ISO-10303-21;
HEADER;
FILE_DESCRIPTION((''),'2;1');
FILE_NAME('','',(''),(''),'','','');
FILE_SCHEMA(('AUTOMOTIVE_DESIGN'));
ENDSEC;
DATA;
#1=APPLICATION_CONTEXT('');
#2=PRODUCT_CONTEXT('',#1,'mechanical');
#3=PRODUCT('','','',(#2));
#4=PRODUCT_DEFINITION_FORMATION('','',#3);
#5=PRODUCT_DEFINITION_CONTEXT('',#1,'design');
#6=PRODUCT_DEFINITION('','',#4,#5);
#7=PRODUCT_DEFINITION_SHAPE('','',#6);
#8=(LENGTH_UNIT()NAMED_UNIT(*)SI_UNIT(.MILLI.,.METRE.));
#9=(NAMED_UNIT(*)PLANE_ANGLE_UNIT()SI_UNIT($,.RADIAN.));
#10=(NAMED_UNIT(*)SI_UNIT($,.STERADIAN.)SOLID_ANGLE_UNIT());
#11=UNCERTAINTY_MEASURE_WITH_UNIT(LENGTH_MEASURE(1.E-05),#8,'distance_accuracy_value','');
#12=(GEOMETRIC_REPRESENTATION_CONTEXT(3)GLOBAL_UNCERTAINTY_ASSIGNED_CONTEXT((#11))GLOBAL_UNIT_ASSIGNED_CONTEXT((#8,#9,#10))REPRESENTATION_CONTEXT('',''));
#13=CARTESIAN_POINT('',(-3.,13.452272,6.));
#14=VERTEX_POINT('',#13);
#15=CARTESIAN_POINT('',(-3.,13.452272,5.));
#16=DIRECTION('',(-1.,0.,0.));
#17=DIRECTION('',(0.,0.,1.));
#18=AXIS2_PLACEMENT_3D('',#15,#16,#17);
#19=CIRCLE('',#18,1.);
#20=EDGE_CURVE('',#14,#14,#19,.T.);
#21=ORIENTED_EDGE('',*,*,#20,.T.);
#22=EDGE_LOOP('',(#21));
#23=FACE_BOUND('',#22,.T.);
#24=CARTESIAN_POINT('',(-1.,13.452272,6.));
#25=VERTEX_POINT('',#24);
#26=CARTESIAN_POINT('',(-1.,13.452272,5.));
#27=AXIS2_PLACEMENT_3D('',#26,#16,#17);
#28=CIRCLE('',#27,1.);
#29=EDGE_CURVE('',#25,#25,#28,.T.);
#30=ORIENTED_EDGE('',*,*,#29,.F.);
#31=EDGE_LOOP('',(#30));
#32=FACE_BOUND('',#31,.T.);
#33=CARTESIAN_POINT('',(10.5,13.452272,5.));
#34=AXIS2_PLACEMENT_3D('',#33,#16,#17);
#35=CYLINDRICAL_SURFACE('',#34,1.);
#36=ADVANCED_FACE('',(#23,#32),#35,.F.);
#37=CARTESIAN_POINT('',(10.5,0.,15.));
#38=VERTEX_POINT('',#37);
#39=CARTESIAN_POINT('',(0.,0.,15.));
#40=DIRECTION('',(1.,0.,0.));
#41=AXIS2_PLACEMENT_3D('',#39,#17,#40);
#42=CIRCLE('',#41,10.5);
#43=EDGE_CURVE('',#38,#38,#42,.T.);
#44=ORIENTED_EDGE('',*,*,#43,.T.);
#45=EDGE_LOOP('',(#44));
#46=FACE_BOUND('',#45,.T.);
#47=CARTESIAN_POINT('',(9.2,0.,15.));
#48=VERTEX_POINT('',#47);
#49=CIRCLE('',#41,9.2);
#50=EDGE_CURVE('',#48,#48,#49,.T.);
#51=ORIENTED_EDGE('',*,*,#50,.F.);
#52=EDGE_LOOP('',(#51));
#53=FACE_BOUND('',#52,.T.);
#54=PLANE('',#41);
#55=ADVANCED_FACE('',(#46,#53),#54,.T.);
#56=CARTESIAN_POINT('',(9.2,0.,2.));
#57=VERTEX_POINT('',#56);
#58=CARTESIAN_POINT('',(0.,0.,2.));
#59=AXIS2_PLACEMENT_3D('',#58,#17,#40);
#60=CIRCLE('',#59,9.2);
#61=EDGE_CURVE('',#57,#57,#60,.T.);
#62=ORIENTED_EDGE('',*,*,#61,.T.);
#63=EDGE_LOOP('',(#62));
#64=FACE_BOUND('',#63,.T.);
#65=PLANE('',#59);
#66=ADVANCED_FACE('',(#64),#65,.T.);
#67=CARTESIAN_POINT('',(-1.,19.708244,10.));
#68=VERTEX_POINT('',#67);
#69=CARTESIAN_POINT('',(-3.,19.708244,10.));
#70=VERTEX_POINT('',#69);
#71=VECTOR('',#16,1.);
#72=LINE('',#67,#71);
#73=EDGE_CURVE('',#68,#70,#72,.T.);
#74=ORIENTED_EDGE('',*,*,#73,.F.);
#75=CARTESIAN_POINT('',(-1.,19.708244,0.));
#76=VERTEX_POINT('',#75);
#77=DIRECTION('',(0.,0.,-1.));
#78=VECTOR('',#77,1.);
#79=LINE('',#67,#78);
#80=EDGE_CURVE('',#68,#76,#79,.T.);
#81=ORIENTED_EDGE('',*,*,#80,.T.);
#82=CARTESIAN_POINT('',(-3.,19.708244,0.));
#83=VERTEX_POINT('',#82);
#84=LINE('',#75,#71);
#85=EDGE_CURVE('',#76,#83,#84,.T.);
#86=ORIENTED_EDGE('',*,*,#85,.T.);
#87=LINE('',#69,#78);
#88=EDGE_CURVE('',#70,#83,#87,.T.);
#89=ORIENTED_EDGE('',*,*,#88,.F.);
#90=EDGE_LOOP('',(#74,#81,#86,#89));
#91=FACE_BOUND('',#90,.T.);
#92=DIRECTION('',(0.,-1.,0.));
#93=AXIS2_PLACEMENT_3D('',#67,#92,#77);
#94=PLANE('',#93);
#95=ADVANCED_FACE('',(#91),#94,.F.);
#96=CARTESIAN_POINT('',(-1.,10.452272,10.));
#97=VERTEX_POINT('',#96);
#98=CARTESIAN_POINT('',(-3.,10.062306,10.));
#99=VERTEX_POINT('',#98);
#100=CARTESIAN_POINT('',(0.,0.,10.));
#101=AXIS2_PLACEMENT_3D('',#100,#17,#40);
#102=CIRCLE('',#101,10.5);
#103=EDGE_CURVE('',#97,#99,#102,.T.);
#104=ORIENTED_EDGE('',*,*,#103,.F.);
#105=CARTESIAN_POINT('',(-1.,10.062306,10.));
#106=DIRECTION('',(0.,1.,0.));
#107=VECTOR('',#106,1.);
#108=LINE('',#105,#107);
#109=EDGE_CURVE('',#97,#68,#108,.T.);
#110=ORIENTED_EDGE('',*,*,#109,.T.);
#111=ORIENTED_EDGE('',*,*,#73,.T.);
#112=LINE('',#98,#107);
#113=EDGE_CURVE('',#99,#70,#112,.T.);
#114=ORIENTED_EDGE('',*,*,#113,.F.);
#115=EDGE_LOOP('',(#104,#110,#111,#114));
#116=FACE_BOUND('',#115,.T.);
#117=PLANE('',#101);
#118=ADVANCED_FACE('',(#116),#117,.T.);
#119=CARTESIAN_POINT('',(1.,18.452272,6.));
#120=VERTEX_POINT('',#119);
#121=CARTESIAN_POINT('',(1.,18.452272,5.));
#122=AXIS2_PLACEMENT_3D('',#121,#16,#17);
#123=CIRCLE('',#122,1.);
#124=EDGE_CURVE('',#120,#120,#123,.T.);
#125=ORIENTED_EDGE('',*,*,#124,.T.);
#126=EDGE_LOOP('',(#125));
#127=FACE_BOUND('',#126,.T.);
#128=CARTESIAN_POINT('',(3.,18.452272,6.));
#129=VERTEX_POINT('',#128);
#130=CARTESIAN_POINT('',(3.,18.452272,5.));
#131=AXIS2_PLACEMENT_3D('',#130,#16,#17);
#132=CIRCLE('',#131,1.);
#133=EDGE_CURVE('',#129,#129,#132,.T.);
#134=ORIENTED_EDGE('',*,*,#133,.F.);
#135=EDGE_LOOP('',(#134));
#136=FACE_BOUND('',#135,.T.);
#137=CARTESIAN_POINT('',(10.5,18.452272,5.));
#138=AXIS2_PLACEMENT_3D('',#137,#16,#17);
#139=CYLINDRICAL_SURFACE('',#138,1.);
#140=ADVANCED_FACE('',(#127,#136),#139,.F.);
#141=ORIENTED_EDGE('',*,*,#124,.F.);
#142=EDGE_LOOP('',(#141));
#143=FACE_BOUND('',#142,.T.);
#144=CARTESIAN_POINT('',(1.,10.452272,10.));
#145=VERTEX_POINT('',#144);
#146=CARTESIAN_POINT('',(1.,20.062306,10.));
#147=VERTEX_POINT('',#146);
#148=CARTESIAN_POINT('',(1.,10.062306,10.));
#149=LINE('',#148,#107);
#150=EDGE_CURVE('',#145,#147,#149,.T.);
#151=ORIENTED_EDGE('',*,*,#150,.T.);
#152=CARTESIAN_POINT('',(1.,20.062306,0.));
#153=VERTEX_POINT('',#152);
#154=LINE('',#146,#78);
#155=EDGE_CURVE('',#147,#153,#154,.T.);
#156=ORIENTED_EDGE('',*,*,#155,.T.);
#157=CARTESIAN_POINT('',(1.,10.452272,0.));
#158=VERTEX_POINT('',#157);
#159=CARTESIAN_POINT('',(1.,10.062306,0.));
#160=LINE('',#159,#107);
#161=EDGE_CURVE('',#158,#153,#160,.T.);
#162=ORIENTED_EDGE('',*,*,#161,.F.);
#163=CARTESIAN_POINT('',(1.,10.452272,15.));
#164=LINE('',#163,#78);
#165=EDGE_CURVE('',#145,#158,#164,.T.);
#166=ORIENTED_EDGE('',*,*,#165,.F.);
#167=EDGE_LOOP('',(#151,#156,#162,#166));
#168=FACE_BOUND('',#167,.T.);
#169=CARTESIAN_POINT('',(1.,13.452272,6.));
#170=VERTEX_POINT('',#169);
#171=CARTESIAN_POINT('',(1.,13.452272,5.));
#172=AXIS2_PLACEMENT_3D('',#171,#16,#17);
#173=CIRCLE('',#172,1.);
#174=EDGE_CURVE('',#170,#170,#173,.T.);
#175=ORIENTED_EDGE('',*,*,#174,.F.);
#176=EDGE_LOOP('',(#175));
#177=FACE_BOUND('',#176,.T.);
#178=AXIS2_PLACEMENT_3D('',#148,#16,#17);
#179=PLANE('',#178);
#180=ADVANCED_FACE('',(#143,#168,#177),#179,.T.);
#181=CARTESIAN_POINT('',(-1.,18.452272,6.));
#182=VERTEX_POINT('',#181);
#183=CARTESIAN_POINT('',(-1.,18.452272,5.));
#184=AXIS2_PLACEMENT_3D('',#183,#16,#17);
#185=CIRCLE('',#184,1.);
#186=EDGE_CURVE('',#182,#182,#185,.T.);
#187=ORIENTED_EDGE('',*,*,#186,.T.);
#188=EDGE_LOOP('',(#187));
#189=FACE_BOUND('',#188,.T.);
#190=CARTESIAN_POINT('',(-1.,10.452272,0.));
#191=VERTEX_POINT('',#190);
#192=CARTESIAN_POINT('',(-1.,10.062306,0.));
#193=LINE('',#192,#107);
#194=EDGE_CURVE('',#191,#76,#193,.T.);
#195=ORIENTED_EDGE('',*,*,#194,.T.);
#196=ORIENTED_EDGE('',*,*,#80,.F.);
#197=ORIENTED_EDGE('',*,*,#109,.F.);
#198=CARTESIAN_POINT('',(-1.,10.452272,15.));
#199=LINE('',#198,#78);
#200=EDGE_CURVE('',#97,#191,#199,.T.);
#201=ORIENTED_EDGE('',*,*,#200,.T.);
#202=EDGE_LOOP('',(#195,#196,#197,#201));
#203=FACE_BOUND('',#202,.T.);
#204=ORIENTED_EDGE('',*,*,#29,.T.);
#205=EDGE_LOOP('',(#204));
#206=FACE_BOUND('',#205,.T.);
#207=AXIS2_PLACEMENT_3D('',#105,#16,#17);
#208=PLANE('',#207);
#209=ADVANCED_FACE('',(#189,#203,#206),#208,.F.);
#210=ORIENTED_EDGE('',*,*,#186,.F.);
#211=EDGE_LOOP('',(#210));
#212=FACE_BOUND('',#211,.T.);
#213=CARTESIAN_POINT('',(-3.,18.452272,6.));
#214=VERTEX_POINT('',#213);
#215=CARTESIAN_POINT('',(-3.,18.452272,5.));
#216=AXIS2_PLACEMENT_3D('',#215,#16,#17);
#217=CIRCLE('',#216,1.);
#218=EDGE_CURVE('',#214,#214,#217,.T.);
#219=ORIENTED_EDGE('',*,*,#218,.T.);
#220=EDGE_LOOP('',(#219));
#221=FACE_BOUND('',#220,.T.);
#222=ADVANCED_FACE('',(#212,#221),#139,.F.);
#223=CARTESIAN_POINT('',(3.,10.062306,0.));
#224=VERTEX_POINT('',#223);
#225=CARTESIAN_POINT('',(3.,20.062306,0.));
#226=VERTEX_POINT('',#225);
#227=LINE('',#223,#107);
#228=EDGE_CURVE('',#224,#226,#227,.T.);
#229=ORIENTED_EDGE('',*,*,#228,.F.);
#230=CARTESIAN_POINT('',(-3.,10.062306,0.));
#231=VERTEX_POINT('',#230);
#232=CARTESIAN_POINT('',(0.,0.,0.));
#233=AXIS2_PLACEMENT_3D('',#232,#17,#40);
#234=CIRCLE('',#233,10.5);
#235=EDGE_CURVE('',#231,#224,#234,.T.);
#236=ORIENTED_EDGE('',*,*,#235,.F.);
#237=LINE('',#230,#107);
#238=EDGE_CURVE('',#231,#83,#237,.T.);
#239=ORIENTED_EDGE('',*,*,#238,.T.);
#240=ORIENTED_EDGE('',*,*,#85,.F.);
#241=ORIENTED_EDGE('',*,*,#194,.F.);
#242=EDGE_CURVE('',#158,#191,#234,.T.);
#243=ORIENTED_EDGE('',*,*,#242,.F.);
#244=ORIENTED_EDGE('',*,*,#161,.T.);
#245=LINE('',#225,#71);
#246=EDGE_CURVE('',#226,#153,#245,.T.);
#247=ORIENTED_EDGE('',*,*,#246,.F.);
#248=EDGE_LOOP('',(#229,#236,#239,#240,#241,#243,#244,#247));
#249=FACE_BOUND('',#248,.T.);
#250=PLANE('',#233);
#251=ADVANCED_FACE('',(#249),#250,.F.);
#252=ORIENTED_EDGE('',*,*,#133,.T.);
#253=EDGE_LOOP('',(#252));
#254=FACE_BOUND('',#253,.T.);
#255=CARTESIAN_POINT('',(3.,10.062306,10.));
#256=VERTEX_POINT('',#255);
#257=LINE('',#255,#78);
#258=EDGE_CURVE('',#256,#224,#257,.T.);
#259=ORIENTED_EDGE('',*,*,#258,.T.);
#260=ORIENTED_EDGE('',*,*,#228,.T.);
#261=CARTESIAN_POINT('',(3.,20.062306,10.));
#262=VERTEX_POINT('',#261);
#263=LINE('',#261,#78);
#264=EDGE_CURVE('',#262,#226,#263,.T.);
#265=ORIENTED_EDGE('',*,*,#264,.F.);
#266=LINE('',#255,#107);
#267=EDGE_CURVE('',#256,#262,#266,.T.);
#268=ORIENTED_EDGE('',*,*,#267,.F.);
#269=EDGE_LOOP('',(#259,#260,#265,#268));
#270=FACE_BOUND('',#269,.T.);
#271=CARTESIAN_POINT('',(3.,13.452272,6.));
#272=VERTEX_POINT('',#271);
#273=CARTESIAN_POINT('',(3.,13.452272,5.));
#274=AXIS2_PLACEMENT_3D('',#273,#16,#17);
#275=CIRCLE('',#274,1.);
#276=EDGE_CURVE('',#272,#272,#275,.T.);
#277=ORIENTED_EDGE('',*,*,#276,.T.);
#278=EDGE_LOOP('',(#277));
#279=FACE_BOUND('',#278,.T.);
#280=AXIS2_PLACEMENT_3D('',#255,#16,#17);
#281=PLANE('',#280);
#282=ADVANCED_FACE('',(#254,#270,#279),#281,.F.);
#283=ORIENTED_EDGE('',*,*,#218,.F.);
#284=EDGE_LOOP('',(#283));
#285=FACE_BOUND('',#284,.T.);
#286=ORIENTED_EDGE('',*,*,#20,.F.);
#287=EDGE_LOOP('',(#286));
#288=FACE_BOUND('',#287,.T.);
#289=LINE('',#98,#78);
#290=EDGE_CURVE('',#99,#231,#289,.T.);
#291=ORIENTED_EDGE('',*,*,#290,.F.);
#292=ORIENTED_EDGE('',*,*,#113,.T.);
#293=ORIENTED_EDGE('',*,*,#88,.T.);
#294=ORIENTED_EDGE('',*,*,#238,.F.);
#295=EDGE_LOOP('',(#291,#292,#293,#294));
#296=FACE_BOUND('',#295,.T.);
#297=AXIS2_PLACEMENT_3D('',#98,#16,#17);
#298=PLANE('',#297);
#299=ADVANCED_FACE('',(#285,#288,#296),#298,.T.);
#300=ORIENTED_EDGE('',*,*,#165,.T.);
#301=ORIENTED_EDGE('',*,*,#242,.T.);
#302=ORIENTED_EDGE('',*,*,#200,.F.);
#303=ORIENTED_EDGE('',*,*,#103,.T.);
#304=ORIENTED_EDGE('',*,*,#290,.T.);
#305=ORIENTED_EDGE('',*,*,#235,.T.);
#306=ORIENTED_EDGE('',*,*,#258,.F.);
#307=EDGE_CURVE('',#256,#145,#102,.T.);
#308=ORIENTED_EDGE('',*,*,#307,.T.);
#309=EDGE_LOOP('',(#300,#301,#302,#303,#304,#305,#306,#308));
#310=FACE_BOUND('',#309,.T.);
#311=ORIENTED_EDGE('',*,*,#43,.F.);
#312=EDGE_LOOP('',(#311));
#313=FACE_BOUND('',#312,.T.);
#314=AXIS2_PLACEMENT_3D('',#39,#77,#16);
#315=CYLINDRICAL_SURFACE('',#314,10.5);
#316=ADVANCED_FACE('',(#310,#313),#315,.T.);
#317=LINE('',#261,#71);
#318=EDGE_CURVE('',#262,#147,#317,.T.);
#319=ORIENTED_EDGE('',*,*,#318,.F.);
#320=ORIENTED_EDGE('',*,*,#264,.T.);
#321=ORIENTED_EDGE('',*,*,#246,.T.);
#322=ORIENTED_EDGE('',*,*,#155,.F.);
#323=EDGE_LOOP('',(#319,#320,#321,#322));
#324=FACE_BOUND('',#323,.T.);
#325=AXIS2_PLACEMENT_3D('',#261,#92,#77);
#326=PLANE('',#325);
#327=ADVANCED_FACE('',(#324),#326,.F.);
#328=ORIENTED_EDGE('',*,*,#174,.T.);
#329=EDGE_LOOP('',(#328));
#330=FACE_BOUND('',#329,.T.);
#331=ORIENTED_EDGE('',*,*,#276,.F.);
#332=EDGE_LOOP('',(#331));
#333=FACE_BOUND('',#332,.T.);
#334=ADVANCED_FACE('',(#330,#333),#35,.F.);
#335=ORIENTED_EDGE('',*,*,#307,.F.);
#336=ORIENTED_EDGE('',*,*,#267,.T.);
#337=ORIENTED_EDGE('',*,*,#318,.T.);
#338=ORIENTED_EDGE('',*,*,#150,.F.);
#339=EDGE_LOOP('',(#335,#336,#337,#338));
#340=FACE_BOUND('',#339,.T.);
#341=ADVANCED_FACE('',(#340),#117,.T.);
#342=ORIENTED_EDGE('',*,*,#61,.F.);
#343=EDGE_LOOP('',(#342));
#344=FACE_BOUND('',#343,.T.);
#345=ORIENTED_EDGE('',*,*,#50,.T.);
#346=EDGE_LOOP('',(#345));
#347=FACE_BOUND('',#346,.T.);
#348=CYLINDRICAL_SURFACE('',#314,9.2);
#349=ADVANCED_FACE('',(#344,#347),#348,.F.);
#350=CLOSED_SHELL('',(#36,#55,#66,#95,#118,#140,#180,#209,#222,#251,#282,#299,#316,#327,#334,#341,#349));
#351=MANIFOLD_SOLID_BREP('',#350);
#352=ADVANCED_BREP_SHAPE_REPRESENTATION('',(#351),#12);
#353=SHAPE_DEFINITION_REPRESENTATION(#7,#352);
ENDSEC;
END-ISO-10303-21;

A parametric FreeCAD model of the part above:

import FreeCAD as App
import Part
import Sketcher
from FreeCAD import Vector

doc = App.newDocument("Part")
body = doc.addObject("PartDesign::Body", "Body")

# Sketch on XY plane
sketch1 = body.newObject("Sketcher::SketchObject", "Sketch")
sketch1.AttachmentSupport = (doc.getObject("XY_Plane"), [""])
sketch1.MapMode = "FlatFace"
sketch1.addGeometry([
    Part.Circle(Vector(0, 0, 0), Vector(0, 0, 1), 10.5),
    Part.Circle(Vector(0, 0, 0), Vector(0, 0, 1), 9.2),
], False)
sketch1.addConstraint([
    Sketcher.Constraint("Coincident", 0, 3, -1, 1),
    Sketcher.Constraint("Coincident", 1, 3, -1, 1),
    Sketcher.Constraint("Diameter", 0, 21.0),
    Sketcher.Constraint("Diameter", 1, 18.4),
])
pad1 = body.newObject("PartDesign::Pad", "Pad")
pad1.Profile = sketch1
pad1.Length = 15

# Sketch on XY plane
sketch2 = body.newObject("Sketcher::SketchObject", "Sketch001")
sketch2.AttachmentSupport = (doc.getObject("XY_Plane"), [""])
sketch2.MapMode = "FlatFace"
sketch2.addGeometry(Part.Circle(Vector(0, 0, 0), Vector(0, 0, 1), 10.5), False)
sketch2.addConstraint([
    Sketcher.Constraint("Coincident", 0, 3, -1, 1),
    Sketcher.Constraint("Diameter", 0, 21.0),
])
pad2 = body.newObject("PartDesign::Pad", "Pad001")
pad2.Profile = sketch2
pad2.Length = 2

# Sketch on XY plane
sketch3 = body.newObject("Sketcher::SketchObject", "Sketch002")
sketch3.AttachmentSupport = (doc.getObject("XY_Plane"), [""])
sketch3.MapMode = "FlatFace"
sketch3.addGeometry([
    Part.LineSegment(Vector(3, 20.062306, 0), Vector(3, 10.062306, 0)),
    Part.LineSegment(Vector(3, 10.062306, 0), Vector(1, 10.062306, 0)),
    Part.LineSegment(Vector(1, 10.062306, 0), Vector(1, 20.062306, 0)),
    Part.LineSegment(Vector(1, 20.062306, 0), Vector(3, 20.062306, 0)),
], False)
sketch3.addConstraint([
    Sketcher.Constraint("Coincident", 0, 2, 1, 1),
    Sketcher.Constraint("Coincident", 1, 2, 2, 1),
    Sketcher.Constraint("Coincident", 2, 2, 3, 1),
    Sketcher.Constraint("Coincident", 3, 2, 0, 1),
    Sketcher.Constraint("Vertical", 0),
    Sketcher.Constraint("Horizontal", 1),
    Sketcher.Constraint("Vertical", 2),
    Sketcher.Constraint("Horizontal", 3),
    Sketcher.Constraint("DistanceX", 1, 2, 1, 1, 2.0),
    Sketcher.Constraint("DistanceY", 0, 2, 0, 1, 10.0),
    Sketcher.Constraint("DistanceX", -1, 1, 0, 2, 3.0),
    Sketcher.Constraint("DistanceY", -1, 1, 0, 2, 10.062306),
])
pad3 = body.newObject("PartDesign::Pad", "Pad002")
pad3.Profile = sketch3
pad3.Length = 10

# Sketch on XY plane
sketch4 = body.newObject("Sketcher::SketchObject", "Sketch003")
sketch4.AttachmentSupport = (doc.getObject("XY_Plane"), [""])
sketch4.MapMode = "FlatFace"
sketch4.addGeometry([
    Part.LineSegment(Vector(-1, 19.708244, 0), Vector(-1, 10.062306, 0)),
    Part.LineSegment(Vector(-1, 10.062306, 0), Vector(-3, 10.062306, 0)),
    Part.LineSegment(Vector(-3, 10.062306, 0), Vector(-3, 19.708244, 0)),
    Part.LineSegment(Vector(-3, 19.708244, 0), Vector(-1, 19.708244, 0)),
], False)
sketch4.addConstraint([
    Sketcher.Constraint("Coincident", 0, 2, 1, 1),
    Sketcher.Constraint("Coincident", 1, 2, 2, 1),
    Sketcher.Constraint("Coincident", 2, 2, 3, 1),
    Sketcher.Constraint("Coincident", 3, 2, 0, 1),
    Sketcher.Constraint("Vertical", 0),
    Sketcher.Constraint("Horizontal", 1),
    Sketcher.Constraint("Vertical", 2),
    Sketcher.Constraint("Horizontal", 3),
    Sketcher.Constraint("DistanceX", 1, 2, 1, 1, 2.0),
    Sketcher.Constraint("DistanceX", 0, 2, -1, 1, 1.0),
    Sketcher.Constraint("DistanceY", 0, 2, 0, 1, 9.645938),
    Sketcher.Constraint("DistanceY", -1, 1, 0, 2, 10.062306),
])
pad4 = body.newObject("PartDesign::Pad", "Pad003")
pad4.Profile = sketch4
pad4.Length = 10

# Sketch on YZ plane
sketch5 = body.newObject("Sketcher::SketchObject", "Sketch004")
sketch5.AttachmentSupport = (doc.getObject("YZ_Plane"), [""])
sketch5.MapMode = "FlatFace"
sketch5.AttachmentOffset = App.Placement(Vector(0, 0, -3), App.Rotation())
sketch5.addGeometry([
    Part.Circle(Vector(13.452272, 5, 0), Vector(0, 0, 1), 1),
    Part.Circle(Vector(18.452272, 5, 0), Vector(0, 0, 1), 1),
], False)
sketch5.addConstraint([
    Sketcher.Constraint("Equal", 0, 1),
    Sketcher.Constraint("Horizontal", 0, 3, 1, 3),
    Sketcher.Constraint("Diameter", 0, 2.0),
    Sketcher.Constraint("DistanceY", -1, 1, 0, 3, 5.0),
    Sketcher.Constraint("DistanceX", 0, 3, 1, 3, 5.0),
    Sketcher.Constraint("DistanceX", -1, 1, 0, 3, 13.452272),
])
pocket1 = body.newObject("PartDesign::Pocket", "Pocket")
pocket1.Profile = sketch5
pocket1.Type = "ThroughAll"
pocket1.Midplane = True

doc.recompute()
